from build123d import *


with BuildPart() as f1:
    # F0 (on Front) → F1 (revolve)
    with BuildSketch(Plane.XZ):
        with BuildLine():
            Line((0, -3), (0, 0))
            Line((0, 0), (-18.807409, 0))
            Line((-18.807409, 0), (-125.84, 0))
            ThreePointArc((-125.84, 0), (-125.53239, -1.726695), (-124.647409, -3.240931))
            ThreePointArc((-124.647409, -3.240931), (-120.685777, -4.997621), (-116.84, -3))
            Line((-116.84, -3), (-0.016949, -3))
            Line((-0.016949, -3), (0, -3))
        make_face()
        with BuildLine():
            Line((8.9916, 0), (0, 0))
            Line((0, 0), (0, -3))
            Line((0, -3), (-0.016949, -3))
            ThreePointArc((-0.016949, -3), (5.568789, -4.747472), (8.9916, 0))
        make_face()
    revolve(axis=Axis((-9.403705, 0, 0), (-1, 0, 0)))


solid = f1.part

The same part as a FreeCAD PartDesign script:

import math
import FreeCAD as App
import Part
import Sketcher

V = App.Vector

doc = App.newDocument("Part")
body = doc.addObject("PartDesign::Body", "Body")

# Sketch on XZ plane
sketch1 = doc.addObject("Sketcher::SketchObject", "Sketch")
body.addObject(sketch1)
sketch1.AttachmentSupport = (doc.XZ_Plane, [""])
sketch1.MapMode = "FlatFace"
sketch1.addGeometry(Part.ArcOfCircle(Part.Circle(V(-120.8, 0, 0), V(0, 0, 1), 5), math.radians(180), math.radians(220)), False)
sketch1.addGeometry(Part.ArcOfCircle(Part.Circle(V(-120.8, 0, 0), V(0, 0, 1), 5), math.radians(-140), math.radians(-37)), False)
sketch1.addGeometry(Part.LineSegment(V(-116.8, -3, 0), V(0, -3, 0)), False)
sketch1.addGeometry(Part.ArcOfCircle(Part.Circle(V(4, 0, 0), V(0, 0, 1), 5), math.radians(-143), math.radians(0)), False)
sketch1.addGeometry(Part.LineSegment(V(9, 0, 0), V(-125.8, 0, 0)), False)
sketch1.addConstraint(Sketcher.Constraint("Tangent", 0, 2, 1, 1))
sketch1.addConstraint(Sketcher.Constraint("Coincident", 1, 2, 2, 1))
sketch1.addConstraint(Sketcher.Constraint("Coincident", 2, 2, 3, 1))
sketch1.addConstraint(Sketcher.Constraint("Coincident", 3, 2, 4, 1))
sketch1.addConstraint(Sketcher.Constraint("Coincident", 4, 2, 0, 1))
sketch1.addConstraint(Sketcher.Constraint("Horizontal", 2))
sketch1.addConstraint(Sketcher.Constraint("Horizontal", 4))
sketch1.addConstraint(Sketcher.Constraint("Equal", 0, 1))
sketch1.addConstraint(Sketcher.Constraint("PointOnObject", 0, 3, -1))
sketch1.addConstraint(Sketcher.Constraint("PointOnObject", 3, 3, -1))
sketch1.addConstraint(Sketcher.Constraint("PointOnObject", 3, 2, -1))
sketch1.addConstraint(Sketcher.Constraint("Radius", 0, 4.999998))
sketch1.addConstraint(Sketcher.Constraint("DistanceY", 1, 2, -1, 1, 3.0))
sketch1.addConstraint(Sketcher.Constraint("Radius", 3, 5.0038))
sketch1.addConstraint(Sketcher.Constraint("DistanceX", 0, 3, -1, 1, 120.840002))
sketch1.addConstraint(Sketcher.Constraint("DistanceX", 4, 2, 4, 1, 134.8316))
sketch1.addConstraint(Sketcher.Constraint("DistanceX", 0, 2, -1, 1, 124.647409))
revolution = doc.addObject("PartDesign::Revolution", "Revolution")
body.addObject(revolution)
revolution.Profile = sketch1
revolution.ReferenceAxis = (sketch1, ["H_Axis"])
revolution.Angle = 360

doc.recompute()
